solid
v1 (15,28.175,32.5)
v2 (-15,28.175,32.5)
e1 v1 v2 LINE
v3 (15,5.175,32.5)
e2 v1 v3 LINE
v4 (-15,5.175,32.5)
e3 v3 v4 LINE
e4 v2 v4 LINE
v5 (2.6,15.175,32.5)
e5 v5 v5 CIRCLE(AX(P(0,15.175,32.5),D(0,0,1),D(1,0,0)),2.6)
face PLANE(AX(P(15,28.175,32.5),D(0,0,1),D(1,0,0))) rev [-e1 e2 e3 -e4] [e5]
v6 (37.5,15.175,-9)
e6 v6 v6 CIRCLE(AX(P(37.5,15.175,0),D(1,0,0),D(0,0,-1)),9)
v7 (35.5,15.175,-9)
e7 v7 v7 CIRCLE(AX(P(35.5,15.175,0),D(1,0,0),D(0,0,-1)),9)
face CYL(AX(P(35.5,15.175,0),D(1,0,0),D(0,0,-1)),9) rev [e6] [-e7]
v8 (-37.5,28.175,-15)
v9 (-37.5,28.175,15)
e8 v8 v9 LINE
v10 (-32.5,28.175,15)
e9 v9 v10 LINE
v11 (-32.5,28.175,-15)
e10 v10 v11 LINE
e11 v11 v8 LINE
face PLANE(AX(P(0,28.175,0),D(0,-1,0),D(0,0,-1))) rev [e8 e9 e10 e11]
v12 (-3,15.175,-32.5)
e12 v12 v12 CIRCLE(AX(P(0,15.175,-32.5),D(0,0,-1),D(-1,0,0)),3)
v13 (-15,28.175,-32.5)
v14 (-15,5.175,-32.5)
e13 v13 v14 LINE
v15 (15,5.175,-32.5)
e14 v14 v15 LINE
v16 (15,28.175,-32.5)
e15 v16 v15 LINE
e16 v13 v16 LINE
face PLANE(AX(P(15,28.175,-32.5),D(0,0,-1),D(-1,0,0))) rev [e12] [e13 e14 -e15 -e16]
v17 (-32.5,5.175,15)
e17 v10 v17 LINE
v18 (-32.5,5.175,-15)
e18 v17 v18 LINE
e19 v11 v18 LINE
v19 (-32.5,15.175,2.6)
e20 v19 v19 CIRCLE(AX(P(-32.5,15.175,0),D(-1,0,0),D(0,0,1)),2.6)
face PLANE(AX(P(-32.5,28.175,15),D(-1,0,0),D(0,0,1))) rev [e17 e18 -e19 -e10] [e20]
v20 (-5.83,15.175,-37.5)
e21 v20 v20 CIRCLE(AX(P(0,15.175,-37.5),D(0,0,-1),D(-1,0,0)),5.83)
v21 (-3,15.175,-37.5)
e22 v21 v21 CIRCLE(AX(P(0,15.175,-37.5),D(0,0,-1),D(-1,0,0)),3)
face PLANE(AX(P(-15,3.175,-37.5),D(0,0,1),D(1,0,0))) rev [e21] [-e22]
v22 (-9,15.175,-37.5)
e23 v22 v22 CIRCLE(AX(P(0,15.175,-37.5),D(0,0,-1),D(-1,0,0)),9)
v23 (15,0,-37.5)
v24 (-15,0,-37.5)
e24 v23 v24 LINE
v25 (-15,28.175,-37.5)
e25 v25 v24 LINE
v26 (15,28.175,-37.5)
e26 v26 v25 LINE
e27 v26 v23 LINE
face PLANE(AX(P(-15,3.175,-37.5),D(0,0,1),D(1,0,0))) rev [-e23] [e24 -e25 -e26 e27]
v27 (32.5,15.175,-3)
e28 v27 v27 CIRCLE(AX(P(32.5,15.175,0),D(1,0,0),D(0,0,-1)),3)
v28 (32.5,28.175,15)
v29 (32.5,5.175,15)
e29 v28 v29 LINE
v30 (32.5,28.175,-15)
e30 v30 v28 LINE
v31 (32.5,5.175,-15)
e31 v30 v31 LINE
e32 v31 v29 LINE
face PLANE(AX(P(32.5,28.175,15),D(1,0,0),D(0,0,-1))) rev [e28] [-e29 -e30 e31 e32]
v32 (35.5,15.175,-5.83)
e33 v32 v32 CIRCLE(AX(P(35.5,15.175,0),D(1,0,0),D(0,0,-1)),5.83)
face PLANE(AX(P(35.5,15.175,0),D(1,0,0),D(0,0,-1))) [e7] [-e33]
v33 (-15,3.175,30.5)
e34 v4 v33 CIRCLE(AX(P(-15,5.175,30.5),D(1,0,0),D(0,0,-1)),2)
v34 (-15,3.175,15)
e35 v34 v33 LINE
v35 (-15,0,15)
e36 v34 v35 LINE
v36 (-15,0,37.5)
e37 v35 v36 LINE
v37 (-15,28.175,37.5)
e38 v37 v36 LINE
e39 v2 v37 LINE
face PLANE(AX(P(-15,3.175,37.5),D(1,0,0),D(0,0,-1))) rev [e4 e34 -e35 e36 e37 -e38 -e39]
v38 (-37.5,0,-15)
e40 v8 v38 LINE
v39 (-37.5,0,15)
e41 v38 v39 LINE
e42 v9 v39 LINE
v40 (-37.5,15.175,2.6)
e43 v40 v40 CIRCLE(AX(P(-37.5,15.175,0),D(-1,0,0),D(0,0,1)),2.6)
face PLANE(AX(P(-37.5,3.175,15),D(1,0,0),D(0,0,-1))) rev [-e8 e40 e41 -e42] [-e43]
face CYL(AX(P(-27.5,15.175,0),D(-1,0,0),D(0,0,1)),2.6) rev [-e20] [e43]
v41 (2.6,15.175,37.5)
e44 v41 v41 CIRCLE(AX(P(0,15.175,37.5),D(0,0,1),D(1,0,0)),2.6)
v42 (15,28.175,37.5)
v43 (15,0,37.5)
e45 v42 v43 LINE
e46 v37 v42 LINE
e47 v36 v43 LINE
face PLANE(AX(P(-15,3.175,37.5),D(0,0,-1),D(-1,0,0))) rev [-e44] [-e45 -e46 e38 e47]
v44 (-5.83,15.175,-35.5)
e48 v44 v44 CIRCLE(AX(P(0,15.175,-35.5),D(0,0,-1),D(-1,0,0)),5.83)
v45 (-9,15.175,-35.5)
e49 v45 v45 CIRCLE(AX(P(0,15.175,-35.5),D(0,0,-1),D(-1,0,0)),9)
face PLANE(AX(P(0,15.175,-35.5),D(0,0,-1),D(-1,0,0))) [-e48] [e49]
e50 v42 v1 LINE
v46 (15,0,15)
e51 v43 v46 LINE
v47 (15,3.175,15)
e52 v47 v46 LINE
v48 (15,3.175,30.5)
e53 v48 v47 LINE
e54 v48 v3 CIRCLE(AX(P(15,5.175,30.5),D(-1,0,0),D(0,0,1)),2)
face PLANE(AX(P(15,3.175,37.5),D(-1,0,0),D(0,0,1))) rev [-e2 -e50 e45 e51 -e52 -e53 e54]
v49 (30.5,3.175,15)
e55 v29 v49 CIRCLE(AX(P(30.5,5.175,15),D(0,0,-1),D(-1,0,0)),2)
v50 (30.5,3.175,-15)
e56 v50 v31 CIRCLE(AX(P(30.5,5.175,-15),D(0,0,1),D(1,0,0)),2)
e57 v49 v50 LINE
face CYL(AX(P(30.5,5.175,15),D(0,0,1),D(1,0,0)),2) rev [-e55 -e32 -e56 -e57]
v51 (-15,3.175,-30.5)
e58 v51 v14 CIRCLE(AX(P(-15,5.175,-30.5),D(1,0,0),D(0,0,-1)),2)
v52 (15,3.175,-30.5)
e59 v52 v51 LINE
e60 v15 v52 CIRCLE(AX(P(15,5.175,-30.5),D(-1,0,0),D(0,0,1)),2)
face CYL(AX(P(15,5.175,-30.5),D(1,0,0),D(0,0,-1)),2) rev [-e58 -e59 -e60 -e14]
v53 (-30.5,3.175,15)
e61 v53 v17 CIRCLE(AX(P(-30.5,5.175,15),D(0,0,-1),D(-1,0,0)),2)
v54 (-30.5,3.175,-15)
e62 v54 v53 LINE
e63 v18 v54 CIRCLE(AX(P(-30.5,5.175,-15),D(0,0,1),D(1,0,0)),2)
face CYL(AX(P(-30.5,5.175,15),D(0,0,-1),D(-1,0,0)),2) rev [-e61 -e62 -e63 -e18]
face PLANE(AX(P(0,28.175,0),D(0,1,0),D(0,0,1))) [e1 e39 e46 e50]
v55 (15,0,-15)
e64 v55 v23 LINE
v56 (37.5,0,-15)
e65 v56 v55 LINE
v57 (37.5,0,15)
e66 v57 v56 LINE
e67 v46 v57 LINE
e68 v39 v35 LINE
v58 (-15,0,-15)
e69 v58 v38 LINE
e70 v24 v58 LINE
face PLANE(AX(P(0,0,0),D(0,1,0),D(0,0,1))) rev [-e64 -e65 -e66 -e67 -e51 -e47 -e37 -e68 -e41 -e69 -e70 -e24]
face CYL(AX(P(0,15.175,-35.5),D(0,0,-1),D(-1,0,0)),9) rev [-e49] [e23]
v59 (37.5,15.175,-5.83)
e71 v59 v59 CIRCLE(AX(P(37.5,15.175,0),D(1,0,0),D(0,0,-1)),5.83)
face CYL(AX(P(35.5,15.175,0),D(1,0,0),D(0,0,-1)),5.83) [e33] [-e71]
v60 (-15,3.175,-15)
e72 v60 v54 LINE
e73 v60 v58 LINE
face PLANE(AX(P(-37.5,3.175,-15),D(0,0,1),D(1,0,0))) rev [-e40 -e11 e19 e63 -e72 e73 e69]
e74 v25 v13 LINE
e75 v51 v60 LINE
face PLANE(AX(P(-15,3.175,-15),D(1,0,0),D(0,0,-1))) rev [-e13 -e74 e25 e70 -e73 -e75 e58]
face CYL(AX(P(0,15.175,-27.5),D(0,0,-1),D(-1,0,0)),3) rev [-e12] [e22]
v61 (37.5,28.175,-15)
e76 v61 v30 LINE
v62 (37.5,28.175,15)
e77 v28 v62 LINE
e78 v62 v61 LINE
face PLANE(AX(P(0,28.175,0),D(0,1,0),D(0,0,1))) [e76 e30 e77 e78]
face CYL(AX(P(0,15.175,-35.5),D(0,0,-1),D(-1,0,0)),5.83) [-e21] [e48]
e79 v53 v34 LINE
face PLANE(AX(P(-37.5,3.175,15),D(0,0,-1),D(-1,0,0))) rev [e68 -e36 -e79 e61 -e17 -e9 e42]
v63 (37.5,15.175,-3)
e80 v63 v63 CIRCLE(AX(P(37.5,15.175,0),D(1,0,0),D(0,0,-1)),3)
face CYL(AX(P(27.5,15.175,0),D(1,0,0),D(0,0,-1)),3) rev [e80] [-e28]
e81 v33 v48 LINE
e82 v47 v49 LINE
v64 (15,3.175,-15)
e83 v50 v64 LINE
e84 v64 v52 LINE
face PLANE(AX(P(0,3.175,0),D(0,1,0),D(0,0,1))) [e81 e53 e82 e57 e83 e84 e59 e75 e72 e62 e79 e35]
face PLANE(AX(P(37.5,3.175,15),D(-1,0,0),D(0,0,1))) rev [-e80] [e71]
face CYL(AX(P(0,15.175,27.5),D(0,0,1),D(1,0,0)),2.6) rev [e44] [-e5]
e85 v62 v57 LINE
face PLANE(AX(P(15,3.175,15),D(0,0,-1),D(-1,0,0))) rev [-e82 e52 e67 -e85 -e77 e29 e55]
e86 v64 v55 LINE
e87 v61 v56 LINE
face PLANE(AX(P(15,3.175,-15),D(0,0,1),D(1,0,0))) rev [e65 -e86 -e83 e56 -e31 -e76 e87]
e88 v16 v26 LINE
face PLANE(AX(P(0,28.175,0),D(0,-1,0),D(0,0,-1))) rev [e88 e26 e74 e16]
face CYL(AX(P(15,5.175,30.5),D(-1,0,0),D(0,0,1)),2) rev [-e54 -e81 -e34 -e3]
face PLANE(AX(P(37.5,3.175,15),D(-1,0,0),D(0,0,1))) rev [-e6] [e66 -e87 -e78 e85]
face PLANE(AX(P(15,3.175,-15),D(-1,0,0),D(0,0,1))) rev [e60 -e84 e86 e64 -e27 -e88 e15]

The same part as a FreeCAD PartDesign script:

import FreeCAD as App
import Part
import Sketcher
Q = App.Units.Quantity


def edges_at(feature, points):
    """Names of the edges that pass closest to the given points."""
    edges = feature.Shape.Edges
    near = lambda p: min(range(len(edges)), key=lambda i: edges[i].distToShape(Part.Vertex(*p))[0])
    return sorted({f"Edge{near(p) + 1}" for p in points})


def add_polygon(sketch, points):
    """Adds a closed chain of lines whose ends are joined by coincident constraints."""
    first, n = sketch.GeometryCount, len(points)
    for a, b in zip(points, points[1:] + points[:1]):
        sketch.addGeometry(Part.LineSegment(App.Vector(*a, 0), App.Vector(*b, 0)), False)
    for i in range(n):
        sketch.addConstraint(Sketcher.Constraint("Coincident", first + i, 2, first + (i + 1) % n, 1))

doc = App.newDocument("Part")
params = doc.addObject("Spreadsheet::Sheet", "Params")
for row, (alias, value) in enumerate([
    ("sketch1_width", "30 mm"),
    ("sketch1_width2", "22.5 mm"),
    ("pad1_length", "3.175 mm"),
    ("sketch2_width", "5 mm"),
    ("sketch2_height", "30 mm"),
    ("pad2_length", "25 mm"),
    ("fillet_radius", "2 mm"),
    ("sketch3_width", "30 mm"),
    ("sketch3_height", "5 mm"),
    ("pad3_length", "25 mm"),
    ("fillet2_radius", "2 mm"),
    ("sketch4_diameter", "5.2 mm"),
    ("pocket1_length", "10 mm"),
    ("sketch5_diameter", "6 mm"),
    ("pocket2_length", "10 mm"),
    ("sketch6_diameter", "18 mm"),
    ("sketch6_diameter2", "11.66 mm"),
    ("pocket3_length", "2 mm"),
], start=1):
    params.set(f"A{row}", alias)
    params.set(f"B{row}", "=" + value)
    params.setAlias(f"B{row}", alias)

body = doc.addObject("PartDesign::Body", "Body")

sketch1 = doc.addObject("Sketcher::SketchObject", "Sketch")
body.addObject(sketch1)
sketch1.AttachmentSupport = (doc.XZ_Plane, [""])
sketch1.MapMode = "FlatFace"
add_polygon(sketch1, [(-15, -38), (-15, -15), (-38, -15), (-38, 15), (-15, 15), (-15, 38), (15, 38), (15, 15), (38, 15), (38, -15), (15, -15), (15, -38)])
sketch1.addConstraint(Sketcher.Constraint("Vertical", 0))
sketch1.addConstraint(Sketcher.Constraint("Horizontal", 1))
sketch1.addConstraint(Sketcher.Constraint("Vertical", 2))
sketch1.addConstraint(Sketcher.Constraint("Horizontal", 3))
sketch1.addConstraint(Sketcher.Constraint("Vertical", 4))
sketch1.addConstraint(Sketcher.Constraint("Horizontal", 5))
sketch1.addConstraint(Sketcher.Constraint("Vertical", 6))
sketch1.addConstraint(Sketcher.Constraint("Horizontal", 7))
sketch1.addConstraint(Sketcher.Constraint("Vertical", 8))
sketch1.addConstraint(Sketcher.Constraint("Horizontal", 9))
sketch1.addConstraint(Sketcher.Constraint("Vertical", 10))
sketch1.addConstraint(Sketcher.Constraint("Horizontal", 11))
sketch1.addConstraint(Sketcher.Constraint("Symmetric", 0, 2, 6, 2, -1, 1))
sketch1.addConstraint(Sketcher.Constraint("Symmetric", 2, 2, 8, 2, -1, 1))
sketch1.addConstraint(Sketcher.Constraint("Symmetric", 4, 2, 10, 2, -1, 1))
sketch1.addConstraint(Sketcher.Constraint("Symmetric", 3, 2, 6, 2, -2))
sketch1.addConstraint(Sketcher.Constraint("Equal", 9, 0))
sketch1.addConstraint(Sketcher.Constraint("Equal", 11, 2))
sketch1.addConstraint(Sketcher.Constraint("DistanceX", 5, 1, 5, 2, Q("30 mm")))
sketch1.addConstraint(Sketcher.Constraint("DistanceX", 1, 2, 1, 1, Q("22.5 mm")))
sketch1.setExpression("Constraints[30]", "Params.sketch1_width")
sketch1.setExpression("Constraints[31]", "Params.sketch1_width2")
pad1 = doc.addObject("PartDesign::Pad", "Pad")
body.addObject(pad1)
pad1.Profile = sketch1
pad1.setExpression("Length", "Params.pad1_length")
pad1.Reversed = True

sketch2 = doc.addObject("Sketcher::SketchObject", "Sketch001")
body.addObject(sketch2)
sketch2.AttachmentSupport = (doc.XZ_Plane, [""])
sketch2.MapMode = "FlatFace"
sketch2.AttachmentOffset = App.Placement(App.Vector(0, 0, -3.175), App.Rotation())
add_polygon(sketch2, [(-38, -15), (-38, 15), (-32, 15), (-32, -15)])
add_polygon(sketch2, [(32, -15), (32, 15), (38, 15), (38, -15)])
sketch2.addConstraint(Sketcher.Constraint("Vertical", 0))
sketch2.addConstraint(Sketcher.Constraint("Horizontal", 1))
sketch2.addConstraint(Sketcher.Constraint("Vertical", 2))
sketch2.addConstraint(Sketcher.Constraint("Horizontal", 3))
sketch2.addConstraint(Sketcher.Constraint("Vertical", 4))
sketch2.addConstraint(Sketcher.Constraint("Horizontal", 5))
sketch2.addConstraint(Sketcher.Constraint("Vertical", 6))
sketch2.addConstraint(Sketcher.Constraint("Horizontal", 7))
sketch2.addConstraint(Sketcher.Constraint("Symmetric", 2, 2, 4, 2, -1, 1))
sketch2.addConstraint(Sketcher.Constraint("Symmetric", 0, 2, 6, 2, -1, 1))
sketch2.addConstraint(Sketcher.Constraint("Horizontal", 1, 2, 4, 2))
sketch2.addConstraint(Sketcher.Constraint("DistanceX", 1, 1, 1, 2, Q("5 mm")))
sketch2.addConstraint(Sketcher.Constraint("DistanceY", 0, 1, 0, 2, Q("30 mm")))
sketch2.addConstraint(Sketcher.Constraint("DistanceX", 1, 2, 4, 2, Q("65 mm")))
sketch2.setExpression("Constraints[19]", "Params.sketch2_width")
sketch2.setExpression("Constraints[20]", "Params.sketch2_height")
pad2 = doc.addObject("PartDesign::Pad", "Pad001")
body.addObject(pad2)
pad2.Profile = sketch2
pad2.setExpression("Length", "Params.pad2_length")
pad2.Reversed = True
doc.recompute()

fillet = doc.addObject("PartDesign::Fillet", "Fillet")
body.addObject(fillet)
fillet.Base = (pad2, edges_at(pad2, [(-32.5, 3.175, 0), (32.5, 3.175, 0)]))
fillet.setExpression("Radius", "Params.fillet_radius")

sketch3 = doc.addObject("Sketcher::SketchObject", "Sketch002")
body.addObject(sketch3)
sketch3.AttachmentSupport = (doc.XZ_Plane, [""])
sketch3.MapMode = "FlatFace"
sketch3.AttachmentOffset = App.Placement(App.Vector(0, 0, -3.175), App.Rotation())
add_polygon(sketch3, [(-15, 32), (-15, 38), (15, 38), (15, 32)])
add_polygon(sketch3, [(-15, -38), (-15, -32), (15, -32), (15, -38)])
sketch3.addConstraint(Sketcher.Constraint("Vertical", 0))
sketch3.addConstraint(Sketcher.Constraint("Horizontal", 1))
sketch3.addConstraint(Sketcher.Constraint("Vertical", 2))
sketch3.addConstraint(Sketcher.Constraint("Horizontal", 3))
sketch3.addConstraint(Sketcher.Constraint("Vertical", 4))
sketch3.addConstraint(Sketcher.Constraint("Horizontal", 5))
sketch3.addConstraint(Sketcher.Constraint("Vertical", 6))
sketch3.addConstraint(Sketcher.Constraint("Horizontal", 7))
sketch3.addConstraint(Sketcher.Constraint("Symmetric", 2, 2, 4, 2, -1, 1))
sketch3.addConstraint(Sketcher.Constraint("Symmetric", 0, 2, 6, 2, -1, 1))
sketch3.addConstraint(Sketcher.Constraint("Vertical", 3, 2, 4, 2))
sketch3.addConstraint(Sketcher.Constraint("DistanceX", 1, 1, 1, 2, Q("30 mm")))
sketch3.addConstraint(Sketcher.Constraint("DistanceY", 0, 1, 0, 2, Q("5 mm")))
sketch3.addConstraint(Sketcher.Constraint("DistanceY", 4, 2, 3, 2, Q("65 mm")))
sketch3.setExpression("Constraints[19]", "Params.sketch3_width")
sketch3.setExpression("Constraints[20]", "Params.sketch3_height")
pad3 = doc.addObject("PartDesign::Pad", "Pad002")
body.addObject(pad3)
pad3.Profile = sketch3
pad3.setExpression("Length", "Params.pad3_length")
pad3.Reversed = True
doc.recompute()

fillet2 = doc.addObject("PartDesign::Fillet", "Fillet001")
body.addObject(fillet2)
fillet2.Base = (pad3, edges_at(pad3, [(0, 3.175, 32.5), (0, 3.175, -32.5)]))
fillet2.setExpression("Radius", "Params.fillet2_radius")

sketch4 = doc.addObject("Sketcher::SketchObject", "Sketch003")
body.addObject(sketch4)
sketch4.AttachmentSupport = (doc.YZ_Plane, [""])
sketch4.MapMode = "FlatFace"
sketch4.AttachmentOffset = App.Placement(App.Vector(0, 0, -37.5), App.Rotation())
sketch4.addGeometry(Part.Circle(App.Vector(15.2, 0, 0), App.Vector(0, 0, 1), 2.6), False)
sketch4.addConstraint(Sketcher.Constraint("PointOnObject", 0, 3, -1))
sketch4.addConstraint(Sketcher.Constraint("Diameter", 0, Q("5.2 mm")))
sketch4.addConstraint(Sketcher.Constraint("DistanceX", -1, 1, 0, 3, Q("15.175 mm")))
sketch4.setExpression("Constraints[1]", "Params.sketch4_diameter")
pocket1 = doc.addObject("PartDesign::Pocket", "Pocket")
body.addObject(pocket1)
pocket1.Profile = sketch4
pocket1.setExpression("Length", "Params.pocket1_length")
pocket1.Reversed = True
doc.recompute()

polarpattern = doc.addObject("PartDesign::PolarPattern", "PolarPattern")
body.addObject(polarpattern)
polarpattern.Originals = [pocket1]
polarpattern.Axis = (doc.Y_Axis, [""])
polarpattern.Angle = 90
polarpattern.Occurrences = 2
body.Tip = polarpattern

sketch5 = doc.addObject("Sketcher::SketchObject", "Sketch004")
body.addObject(sketch5)
sketch5.AttachmentSupport = (doc.YZ_Plane, [""])
sketch5.MapMode = "FlatFace"
sketch5.AttachmentOffset = App.Placement(App.Vector(0, 0, 37.5), App.Rotation())
sketch5.addGeometry(Part.Circle(App.Vector(15.2, 0, 0), App.Vector(0, 0, 1), 3), False)
sketch5.addConstraint(Sketcher.Constraint("PointOnObject", 0, 3, -1))
sketch5.addConstraint(Sketcher.Constraint("Diameter", 0, Q("6 mm")))
sketch5.addConstraint(Sketcher.Constraint("DistanceX", -1, 1, 0, 3, Q("15.175 mm")))
sketch5.setExpression("Constraints[1]", "Params.sketch5_diameter")
pocket2 = doc.addObject("PartDesign::Pocket", "Pocket001")
body.addObject(pocket2)
pocket2.Profile = sketch5
pocket2.setExpression("Length", "Params.pocket2_length")
doc.recompute()

polarpattern2 = doc.addObject("PartDesign::PolarPattern", "PolarPattern001")
body.addObject(polarpattern2)
polarpattern2.Originals = [pocket2]
polarpattern2.Axis = (doc.Y_Axis, [""])
polarpattern2.Angle = 90
polarpattern2.Occurrences = 2
body.Tip = polarpattern2

sketch6 = doc.addObject("Sketcher::SketchObject", "Sketch005")
body.addObject(sketch6)
sketch6.AttachmentSupport = (doc.XY_Plane, [""])
sketch6.MapMode = "FlatFace"
sketch6.AttachmentOffset = App.Placement(App.Vector(0, 0, -37.5), App.Rotation())
sketch6.addGeometry(Part.Circle(App.Vector(0, 15, 0), App.Vector(0, 0, 1), 9), False)
sketch6.addGeometry(Part.Circle(App.Vector(0, 15, 0), App.Vector(0, 0, 1), 6), False)
sketch6.addConstraint(Sketcher.Constraint("Coincident", 1, 3, 0, 3))
sketch6.addConstraint(Sketcher.Constraint("PointOnObject", 0, 3, -2))
sketch6.addConstraint(Sketcher.Constraint("Diameter", 0, Q("18 mm")))
sketch6.addConstraint(Sketcher.Constraint("Diameter", 1, Q("11.66 mm")))
sketch6.addConstraint(Sketcher.Constraint("DistanceY", -1, 1, 0, 3, Q("15.175 mm")))
sketch6.setExpression("Constraints[2]", "Params.sketch6_diameter")
sketch6.setExpression("Constraints[3]", "Params.sketch6_diameter2")
pocket3 = doc.addObject("PartDesign::Pocket", "Pocket002")
body.addObject(pocket3)
pocket3.Profile = sketch6
pocket3.setExpression("Length", "Params.pocket3_length")
pocket3.Reversed = True
doc.recompute()

polarpattern3 = doc.addObject("PartDesign::PolarPattern", "PolarPattern002")
body.addObject(polarpattern3)
polarpattern3.Originals = [pocket3]
polarpattern3.Axis = (doc.Y_Axis, [""])
polarpattern3.Angle = 270
polarpattern3.Occurrences = 2
body.Tip = polarpattern3

doc.recompute()
